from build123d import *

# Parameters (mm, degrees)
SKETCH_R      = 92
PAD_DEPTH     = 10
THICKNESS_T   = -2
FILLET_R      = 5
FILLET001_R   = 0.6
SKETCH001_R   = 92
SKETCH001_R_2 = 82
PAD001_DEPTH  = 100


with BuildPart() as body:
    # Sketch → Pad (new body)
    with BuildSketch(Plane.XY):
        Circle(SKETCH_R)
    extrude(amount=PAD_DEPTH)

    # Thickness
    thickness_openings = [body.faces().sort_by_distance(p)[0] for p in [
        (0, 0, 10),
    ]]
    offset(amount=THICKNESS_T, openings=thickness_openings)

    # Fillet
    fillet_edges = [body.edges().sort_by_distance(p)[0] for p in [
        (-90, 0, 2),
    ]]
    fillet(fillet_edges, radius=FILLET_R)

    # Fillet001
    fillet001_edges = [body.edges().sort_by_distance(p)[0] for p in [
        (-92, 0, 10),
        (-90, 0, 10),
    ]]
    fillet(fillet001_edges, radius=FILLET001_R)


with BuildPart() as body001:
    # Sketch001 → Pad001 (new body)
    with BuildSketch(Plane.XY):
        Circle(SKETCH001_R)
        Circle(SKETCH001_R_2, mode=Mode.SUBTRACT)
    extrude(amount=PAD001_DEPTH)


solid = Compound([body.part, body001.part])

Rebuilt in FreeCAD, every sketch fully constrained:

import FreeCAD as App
import Part
import Sketcher


def edges_at(feature, points):
    """Names of the edges that pass closest to the given points."""
    edges = feature.Shape.Edges
    near = lambda p: min(range(len(edges)), key=lambda i: edges[i].distToShape(Part.Vertex(*p))[0])
    return sorted({f"Edge{near(p) + 1}" for p in points})


def faces_at(feature, points):
    """Names of the faces that lie closest to the given points."""
    faces = feature.Shape.Faces
    near = lambda p: min(range(len(faces)), key=lambda i: faces[i].distToShape(Part.Vertex(*p))[0])
    return sorted({f"Face{near(p) + 1}" for p in points})

doc = App.newDocument("Part")
body = doc.addObject("PartDesign::Body", "Body")

# Sketch on XY plane
sketch1 = doc.addObject("Sketcher::SketchObject", "Sketch")
body.addObject(sketch1)
sketch1.AttachmentSupport = (doc.XY_Plane, [""])
sketch1.MapMode = "FlatFace"
sketch1.addGeometry(Part.Circle(App.Vector(0, 0, 0), App.Vector(0, 0, 1), 92), False)
sketch1.addConstraint([
    Sketcher.Constraint("Coincident", 0, 3, -1, 1),
    Sketcher.Constraint("Diameter", 0, 184.0),
])
pad1 = doc.addObject("PartDesign::Pad", "Pad")
body.addObject(pad1)
pad1.Profile = sketch1
pad1.Length = 10
doc.recompute()

thickness = doc.addObject("PartDesign::Thickness", "Thickness")
body.addObject(thickness)
thickness.Base = (pad1, faces_at(pad1, [(0, 0, 10)]))
thickness.Value = 2
thickness.Reversed = True
thickness.Join = "Arc"
doc.recompute()

fillet = doc.addObject("PartDesign::Fillet", "Fillet")
body.addObject(fillet)
fillet.Base = (thickness, edges_at(thickness, [(-90, 0, 2)]))
fillet.Radius = 5
doc.recompute()

fillet2 = doc.addObject("PartDesign::Fillet", "Fillet001")
body.addObject(fillet2)
fillet2.Base = (fillet, edges_at(fillet, [(-92, 0, 10), (-90, 0, 10)]))
fillet2.Radius = 0.6
body2 = doc.addObject("PartDesign::Body", "Body001")

# Sketch on XY plane
sketch2 = doc.addObject("Sketcher::SketchObject", "Sketch001")
body2.addObject(sketch2)
sketch2.AttachmentSupport = (doc.getObject("XY_Plane001"), [""])
sketch2.MapMode = "FlatFace"
sketch2.addGeometry([
    Part.Circle(App.Vector(0, 0, 0), App.Vector(0, 0, 1), 92),
    Part.Circle(App.Vector(0, 0, 0), App.Vector(0, 0, 1), 82),
], False)
sketch2.addConstraint([
    Sketcher.Constraint("Coincident", 0, 3, -1, 1),
    Sketcher.Constraint("Coincident", 1, 3, -1, 1),
    Sketcher.Constraint("Diameter", 0, 184.0),
    Sketcher.Constraint("Diameter", 1, 164.0),
])
pad2 = doc.addObject("PartDesign::Pad", "Pad001")
body2.addObject(pad2)
pad2.Profile = sketch2
pad2.Length = 100

doc.recompute()
